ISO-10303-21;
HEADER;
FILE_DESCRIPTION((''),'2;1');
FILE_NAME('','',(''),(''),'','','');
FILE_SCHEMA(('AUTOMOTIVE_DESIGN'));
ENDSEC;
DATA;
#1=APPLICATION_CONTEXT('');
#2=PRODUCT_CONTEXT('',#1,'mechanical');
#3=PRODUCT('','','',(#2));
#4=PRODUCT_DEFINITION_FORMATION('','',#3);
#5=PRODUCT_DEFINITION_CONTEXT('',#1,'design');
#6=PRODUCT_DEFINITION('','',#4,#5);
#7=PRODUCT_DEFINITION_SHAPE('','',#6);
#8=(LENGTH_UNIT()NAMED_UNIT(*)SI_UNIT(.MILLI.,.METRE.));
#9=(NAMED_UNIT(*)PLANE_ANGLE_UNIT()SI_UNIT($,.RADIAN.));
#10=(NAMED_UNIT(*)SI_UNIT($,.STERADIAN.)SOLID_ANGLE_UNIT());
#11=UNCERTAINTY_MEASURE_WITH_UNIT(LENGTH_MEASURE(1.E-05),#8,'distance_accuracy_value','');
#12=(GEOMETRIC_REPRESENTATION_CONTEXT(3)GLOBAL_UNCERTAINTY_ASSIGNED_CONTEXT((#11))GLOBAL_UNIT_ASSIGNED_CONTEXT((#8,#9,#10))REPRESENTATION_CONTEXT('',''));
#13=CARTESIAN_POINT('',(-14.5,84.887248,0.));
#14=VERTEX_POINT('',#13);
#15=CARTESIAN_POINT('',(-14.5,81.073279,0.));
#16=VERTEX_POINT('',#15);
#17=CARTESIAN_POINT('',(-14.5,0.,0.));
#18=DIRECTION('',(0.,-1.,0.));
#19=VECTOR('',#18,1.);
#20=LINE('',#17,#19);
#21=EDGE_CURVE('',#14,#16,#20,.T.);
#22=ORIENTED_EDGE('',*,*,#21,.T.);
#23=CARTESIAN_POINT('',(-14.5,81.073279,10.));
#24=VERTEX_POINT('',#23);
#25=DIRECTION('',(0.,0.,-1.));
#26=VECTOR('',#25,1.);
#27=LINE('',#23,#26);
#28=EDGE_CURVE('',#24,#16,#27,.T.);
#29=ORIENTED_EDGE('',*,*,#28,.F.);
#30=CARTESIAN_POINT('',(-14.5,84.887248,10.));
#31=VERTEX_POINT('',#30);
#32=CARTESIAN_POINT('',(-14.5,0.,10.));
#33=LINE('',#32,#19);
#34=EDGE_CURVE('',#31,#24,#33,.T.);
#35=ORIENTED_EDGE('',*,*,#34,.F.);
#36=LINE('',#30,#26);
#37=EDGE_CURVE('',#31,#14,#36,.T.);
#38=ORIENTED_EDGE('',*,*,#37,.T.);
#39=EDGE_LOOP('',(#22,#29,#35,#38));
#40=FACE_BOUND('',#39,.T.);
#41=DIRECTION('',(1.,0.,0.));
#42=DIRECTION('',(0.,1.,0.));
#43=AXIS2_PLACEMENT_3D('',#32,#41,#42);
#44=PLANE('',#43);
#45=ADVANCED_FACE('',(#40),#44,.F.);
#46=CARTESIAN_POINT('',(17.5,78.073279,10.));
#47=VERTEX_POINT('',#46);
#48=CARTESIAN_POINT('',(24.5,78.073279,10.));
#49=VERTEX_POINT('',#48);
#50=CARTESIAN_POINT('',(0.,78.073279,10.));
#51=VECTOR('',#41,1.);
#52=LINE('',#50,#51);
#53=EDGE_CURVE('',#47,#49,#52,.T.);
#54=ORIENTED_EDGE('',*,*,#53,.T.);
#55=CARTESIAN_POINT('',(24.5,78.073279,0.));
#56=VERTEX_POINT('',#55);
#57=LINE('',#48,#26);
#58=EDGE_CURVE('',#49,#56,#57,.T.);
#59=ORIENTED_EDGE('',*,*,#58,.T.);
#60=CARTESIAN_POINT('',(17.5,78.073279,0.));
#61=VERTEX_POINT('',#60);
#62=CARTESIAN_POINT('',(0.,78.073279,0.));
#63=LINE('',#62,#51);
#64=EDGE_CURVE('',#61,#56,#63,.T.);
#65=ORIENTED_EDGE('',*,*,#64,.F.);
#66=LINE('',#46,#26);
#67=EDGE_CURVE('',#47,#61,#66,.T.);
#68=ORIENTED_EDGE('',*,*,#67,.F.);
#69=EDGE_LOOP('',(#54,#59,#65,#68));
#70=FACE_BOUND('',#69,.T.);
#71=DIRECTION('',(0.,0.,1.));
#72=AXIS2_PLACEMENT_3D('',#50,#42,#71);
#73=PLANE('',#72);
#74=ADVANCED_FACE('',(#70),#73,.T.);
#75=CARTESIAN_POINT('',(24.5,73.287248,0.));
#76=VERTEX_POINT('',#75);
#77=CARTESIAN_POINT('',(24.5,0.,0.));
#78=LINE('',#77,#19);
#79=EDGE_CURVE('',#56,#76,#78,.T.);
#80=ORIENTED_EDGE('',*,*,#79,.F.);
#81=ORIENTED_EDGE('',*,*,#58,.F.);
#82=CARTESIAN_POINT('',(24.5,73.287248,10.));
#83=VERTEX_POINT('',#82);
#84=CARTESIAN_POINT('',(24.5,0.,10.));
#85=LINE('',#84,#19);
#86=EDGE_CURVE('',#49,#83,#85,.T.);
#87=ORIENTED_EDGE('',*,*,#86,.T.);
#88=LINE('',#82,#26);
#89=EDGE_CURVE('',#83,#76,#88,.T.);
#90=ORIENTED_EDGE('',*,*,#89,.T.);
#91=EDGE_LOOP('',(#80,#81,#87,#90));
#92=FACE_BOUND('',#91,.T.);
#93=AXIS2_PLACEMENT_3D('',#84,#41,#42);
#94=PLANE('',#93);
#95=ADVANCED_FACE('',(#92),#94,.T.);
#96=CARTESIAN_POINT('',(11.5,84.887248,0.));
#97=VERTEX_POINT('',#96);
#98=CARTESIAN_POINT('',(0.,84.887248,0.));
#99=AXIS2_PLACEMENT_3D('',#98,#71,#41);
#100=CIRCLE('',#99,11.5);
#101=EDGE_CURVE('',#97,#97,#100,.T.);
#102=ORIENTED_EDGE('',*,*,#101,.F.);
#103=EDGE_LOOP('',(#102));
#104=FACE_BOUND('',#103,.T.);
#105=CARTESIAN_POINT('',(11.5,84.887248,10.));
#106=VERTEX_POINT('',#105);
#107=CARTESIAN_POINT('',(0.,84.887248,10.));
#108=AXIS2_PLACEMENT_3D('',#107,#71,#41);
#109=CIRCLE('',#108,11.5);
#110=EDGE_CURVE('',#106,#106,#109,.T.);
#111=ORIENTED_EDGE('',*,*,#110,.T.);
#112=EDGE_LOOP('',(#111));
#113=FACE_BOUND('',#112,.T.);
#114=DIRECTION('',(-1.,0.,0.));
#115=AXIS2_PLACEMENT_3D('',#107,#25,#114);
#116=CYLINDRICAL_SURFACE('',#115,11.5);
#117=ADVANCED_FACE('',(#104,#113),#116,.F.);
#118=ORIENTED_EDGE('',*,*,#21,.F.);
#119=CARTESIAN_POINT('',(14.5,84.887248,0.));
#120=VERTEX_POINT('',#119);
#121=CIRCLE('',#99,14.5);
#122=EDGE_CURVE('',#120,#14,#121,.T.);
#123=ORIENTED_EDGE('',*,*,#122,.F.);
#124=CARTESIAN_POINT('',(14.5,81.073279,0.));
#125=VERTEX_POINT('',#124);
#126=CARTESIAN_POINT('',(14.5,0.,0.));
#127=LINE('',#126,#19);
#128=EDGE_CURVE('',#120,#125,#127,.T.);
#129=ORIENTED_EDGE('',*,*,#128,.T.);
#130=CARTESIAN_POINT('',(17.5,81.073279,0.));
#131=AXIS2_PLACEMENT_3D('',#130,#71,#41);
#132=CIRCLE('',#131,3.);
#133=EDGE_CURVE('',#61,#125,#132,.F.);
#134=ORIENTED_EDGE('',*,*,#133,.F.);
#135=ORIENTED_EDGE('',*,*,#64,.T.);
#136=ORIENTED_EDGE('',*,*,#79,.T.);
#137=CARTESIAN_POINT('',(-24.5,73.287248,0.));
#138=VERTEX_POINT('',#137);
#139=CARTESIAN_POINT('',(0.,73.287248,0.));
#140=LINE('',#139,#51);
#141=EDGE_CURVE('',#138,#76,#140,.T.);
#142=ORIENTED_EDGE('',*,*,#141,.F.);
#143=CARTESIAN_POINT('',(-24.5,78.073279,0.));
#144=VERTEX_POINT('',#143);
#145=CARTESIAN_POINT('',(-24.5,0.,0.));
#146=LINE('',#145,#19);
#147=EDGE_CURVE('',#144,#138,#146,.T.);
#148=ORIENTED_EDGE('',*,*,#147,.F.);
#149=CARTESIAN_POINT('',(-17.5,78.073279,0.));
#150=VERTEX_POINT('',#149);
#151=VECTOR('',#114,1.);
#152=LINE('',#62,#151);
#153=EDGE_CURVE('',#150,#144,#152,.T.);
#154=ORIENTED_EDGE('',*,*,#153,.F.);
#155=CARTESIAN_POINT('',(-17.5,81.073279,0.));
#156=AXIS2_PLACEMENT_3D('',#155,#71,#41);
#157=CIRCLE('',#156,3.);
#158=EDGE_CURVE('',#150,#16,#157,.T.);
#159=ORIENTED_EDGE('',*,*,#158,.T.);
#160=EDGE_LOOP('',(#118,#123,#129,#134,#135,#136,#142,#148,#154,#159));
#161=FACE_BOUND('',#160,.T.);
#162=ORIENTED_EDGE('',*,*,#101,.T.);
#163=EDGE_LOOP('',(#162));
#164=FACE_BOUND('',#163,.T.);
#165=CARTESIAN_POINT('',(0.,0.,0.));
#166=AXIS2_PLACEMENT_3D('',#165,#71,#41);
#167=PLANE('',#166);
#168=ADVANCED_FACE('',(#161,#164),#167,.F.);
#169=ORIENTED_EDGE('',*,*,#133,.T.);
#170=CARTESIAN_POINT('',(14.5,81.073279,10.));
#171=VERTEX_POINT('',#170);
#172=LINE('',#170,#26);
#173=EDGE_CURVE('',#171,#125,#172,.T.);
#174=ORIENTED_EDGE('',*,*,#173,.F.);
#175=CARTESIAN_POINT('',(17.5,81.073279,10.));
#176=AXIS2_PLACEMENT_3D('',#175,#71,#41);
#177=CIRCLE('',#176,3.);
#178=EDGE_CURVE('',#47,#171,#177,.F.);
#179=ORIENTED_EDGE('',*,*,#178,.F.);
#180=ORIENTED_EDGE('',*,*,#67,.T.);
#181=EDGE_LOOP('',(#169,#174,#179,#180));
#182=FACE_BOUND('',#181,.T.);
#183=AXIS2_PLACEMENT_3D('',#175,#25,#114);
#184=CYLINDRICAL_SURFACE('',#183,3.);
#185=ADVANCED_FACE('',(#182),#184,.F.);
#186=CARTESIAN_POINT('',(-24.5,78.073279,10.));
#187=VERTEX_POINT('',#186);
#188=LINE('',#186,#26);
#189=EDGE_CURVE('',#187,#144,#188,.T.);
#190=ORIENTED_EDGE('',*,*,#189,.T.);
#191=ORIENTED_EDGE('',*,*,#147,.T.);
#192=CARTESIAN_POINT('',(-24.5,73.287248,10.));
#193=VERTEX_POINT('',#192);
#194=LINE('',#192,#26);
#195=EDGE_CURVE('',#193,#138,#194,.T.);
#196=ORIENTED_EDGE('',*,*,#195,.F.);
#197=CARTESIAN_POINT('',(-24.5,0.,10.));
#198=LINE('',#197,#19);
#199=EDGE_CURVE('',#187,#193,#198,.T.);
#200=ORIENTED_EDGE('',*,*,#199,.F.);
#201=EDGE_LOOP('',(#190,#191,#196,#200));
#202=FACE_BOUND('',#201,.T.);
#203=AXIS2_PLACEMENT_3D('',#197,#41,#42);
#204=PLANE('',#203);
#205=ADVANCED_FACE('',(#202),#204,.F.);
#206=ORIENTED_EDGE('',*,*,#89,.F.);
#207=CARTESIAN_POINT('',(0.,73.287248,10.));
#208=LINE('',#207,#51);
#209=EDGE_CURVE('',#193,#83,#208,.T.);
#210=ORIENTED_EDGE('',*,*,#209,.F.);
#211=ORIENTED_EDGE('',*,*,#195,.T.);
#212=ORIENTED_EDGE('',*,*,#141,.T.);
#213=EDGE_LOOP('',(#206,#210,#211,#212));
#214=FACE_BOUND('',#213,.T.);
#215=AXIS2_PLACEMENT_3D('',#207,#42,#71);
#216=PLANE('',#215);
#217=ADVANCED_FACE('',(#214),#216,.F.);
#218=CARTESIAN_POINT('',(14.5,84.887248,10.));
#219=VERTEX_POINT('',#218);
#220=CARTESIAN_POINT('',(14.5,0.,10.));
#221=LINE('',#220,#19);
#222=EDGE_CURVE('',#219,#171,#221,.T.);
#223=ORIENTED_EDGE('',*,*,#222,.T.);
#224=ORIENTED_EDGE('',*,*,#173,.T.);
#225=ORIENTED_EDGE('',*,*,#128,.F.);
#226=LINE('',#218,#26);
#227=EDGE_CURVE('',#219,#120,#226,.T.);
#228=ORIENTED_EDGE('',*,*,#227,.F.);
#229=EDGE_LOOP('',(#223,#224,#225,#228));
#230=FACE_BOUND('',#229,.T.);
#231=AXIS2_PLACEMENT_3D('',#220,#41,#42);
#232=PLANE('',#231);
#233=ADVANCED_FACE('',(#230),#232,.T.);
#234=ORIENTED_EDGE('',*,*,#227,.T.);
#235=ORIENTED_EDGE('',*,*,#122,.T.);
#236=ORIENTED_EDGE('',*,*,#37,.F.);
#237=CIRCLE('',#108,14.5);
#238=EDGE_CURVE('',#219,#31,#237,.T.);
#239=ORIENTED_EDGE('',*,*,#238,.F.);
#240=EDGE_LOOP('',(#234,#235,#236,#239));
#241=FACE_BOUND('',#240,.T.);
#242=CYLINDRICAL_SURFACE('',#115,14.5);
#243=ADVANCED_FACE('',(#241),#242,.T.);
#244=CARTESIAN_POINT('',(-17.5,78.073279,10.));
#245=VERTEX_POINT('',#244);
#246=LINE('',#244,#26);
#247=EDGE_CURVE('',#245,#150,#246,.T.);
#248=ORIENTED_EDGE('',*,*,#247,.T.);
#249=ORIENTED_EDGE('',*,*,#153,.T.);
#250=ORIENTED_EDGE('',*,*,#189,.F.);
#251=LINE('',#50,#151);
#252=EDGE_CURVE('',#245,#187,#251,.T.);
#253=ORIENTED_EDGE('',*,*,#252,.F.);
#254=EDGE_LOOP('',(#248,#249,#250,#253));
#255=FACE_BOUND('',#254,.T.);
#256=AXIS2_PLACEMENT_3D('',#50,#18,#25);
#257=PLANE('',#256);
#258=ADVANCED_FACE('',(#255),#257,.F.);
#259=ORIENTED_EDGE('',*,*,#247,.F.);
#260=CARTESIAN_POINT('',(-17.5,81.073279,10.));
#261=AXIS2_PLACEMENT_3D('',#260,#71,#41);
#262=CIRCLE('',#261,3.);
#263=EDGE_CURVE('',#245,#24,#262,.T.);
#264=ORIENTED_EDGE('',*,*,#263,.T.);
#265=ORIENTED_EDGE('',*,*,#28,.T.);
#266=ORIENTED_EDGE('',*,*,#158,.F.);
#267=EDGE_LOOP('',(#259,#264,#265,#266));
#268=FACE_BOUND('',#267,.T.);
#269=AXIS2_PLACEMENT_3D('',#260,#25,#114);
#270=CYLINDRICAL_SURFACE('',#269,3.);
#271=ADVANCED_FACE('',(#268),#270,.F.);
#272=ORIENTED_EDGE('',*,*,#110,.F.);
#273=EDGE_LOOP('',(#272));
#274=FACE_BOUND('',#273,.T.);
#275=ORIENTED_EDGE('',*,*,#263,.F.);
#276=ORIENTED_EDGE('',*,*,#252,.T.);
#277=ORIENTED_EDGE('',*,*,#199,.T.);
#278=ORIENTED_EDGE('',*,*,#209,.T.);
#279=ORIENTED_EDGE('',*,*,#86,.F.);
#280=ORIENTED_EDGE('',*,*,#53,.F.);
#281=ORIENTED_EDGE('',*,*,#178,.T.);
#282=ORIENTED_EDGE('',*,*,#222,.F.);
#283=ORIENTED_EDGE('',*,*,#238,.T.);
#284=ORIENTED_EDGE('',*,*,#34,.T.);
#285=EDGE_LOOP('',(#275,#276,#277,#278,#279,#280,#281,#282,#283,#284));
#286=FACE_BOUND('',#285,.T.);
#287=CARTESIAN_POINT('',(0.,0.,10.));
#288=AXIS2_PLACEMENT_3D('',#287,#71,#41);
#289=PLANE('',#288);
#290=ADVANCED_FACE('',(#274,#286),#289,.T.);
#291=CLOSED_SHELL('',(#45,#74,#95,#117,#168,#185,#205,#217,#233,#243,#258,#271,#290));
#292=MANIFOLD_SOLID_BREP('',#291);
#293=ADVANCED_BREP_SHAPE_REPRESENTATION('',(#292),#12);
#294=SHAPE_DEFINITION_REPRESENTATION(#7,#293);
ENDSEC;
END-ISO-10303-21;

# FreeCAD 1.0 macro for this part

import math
import FreeCAD as App
import Part
import Sketcher

V = App.Vector
Q = App.Units.Quantity

doc = App.newDocument("Part")
body = doc.addObject("PartDesign::Body", "Body")

# Sketch on XY plane
sketch1 = body.newObject("Sketcher::SketchObject", "Sketch")
sketch1.AttachmentSupport = (doc.getObject("XY_Plane"), [""])
sketch1.MapMode = "FlatFace"
sketch1.addGeometry([
    Part.LineSegment(V(24.5, 78.1, 0), V(17.5, 78.1, 0)),  # 0
    Part.ArcOfCircle(Part.Circle(V(17.5, 81.1, 0), V(0, 0, 1), 3), math.radians(180), math.radians(270)),  # 1
    Part.LineSegment(V(14.5, 81.1, 0), V(14.5, 84.9, 0)),  # 2
    Part.ArcOfCircle(Part.Circle(V(0, 84.9, 0), V(0, 0, 1), 14.5), math.radians(0), math.radians(180)),  # 3
    Part.LineSegment(V(-14.5, 84.9, 0), V(-14.5, 81.1, 0)),  # 4
    Part.ArcOfCircle(Part.Circle(V(-17.5, 81.1, 0), V(0, 0, 1), 3), math.radians(-90), math.radians(0)),  # 5
    Part.LineSegment(V(-17.5, 78.1, 0), V(-24.5, 78.1, 0)),  # 6
    Part.LineSegment(V(-24.5, 78.1, 0), V(-24.5, 73.3, 0)),  # 7
    Part.LineSegment(V(-24.5, 73.3, 0), V(24.5, 73.3, 0)),  # 8
    Part.LineSegment(V(24.5, 73.3, 0), V(24.5, 78.1, 0)),  # 9
    Part.Circle(V(0, 84.9, 0), V(0, 0, 1), 11.5),  # 10
], False)
sketch1.addConstraint([
    Sketcher.Constraint("Tangent", 0, 2, 1, 2),
    Sketcher.Constraint("Tangent", 1, 1, 2, 1),
    Sketcher.Constraint("Tangent", 2, 2, 3, 1),
    Sketcher.Constraint("Tangent", 3, 2, 4, 1),
    Sketcher.Constraint("Tangent", 4, 2, 5, 2),
    Sketcher.Constraint("Tangent", 5, 1, 6, 1),
    Sketcher.Constraint("Coincident", 6, 2, 7, 1),
    Sketcher.Constraint("Coincident", 7, 2, 8, 1),
    Sketcher.Constraint("Coincident", 8, 2, 9, 1),
    Sketcher.Constraint("Coincident", 9, 2, 0, 1),
    Sketcher.Constraint("Horizontal", 0),
    Sketcher.Constraint("Vertical", 2),
    Sketcher.Constraint("Vertical", 4),
    Sketcher.Constraint("Horizontal", 6),
    Sketcher.Constraint("Vertical", 7),
    Sketcher.Constraint("Horizontal", 8),
    Sketcher.Constraint("Vertical", 9),
    Sketcher.Constraint("Coincident", 10, 3, 3, 3),
    Sketcher.Constraint("Equal", 1, 5),
    Sketcher.Constraint("Symmetric", 1, 3, 5, 3, -2),
    Sketcher.Constraint("Equal", 0, 6),
    Sketcher.Constraint("Diameter", 10, Q("23 mm")),
    Sketcher.Constraint("Radius", 1, Q("3 mm")),
    Sketcher.Constraint("Radius", 3, Q("14.5 mm")),
    Sketcher.Constraint("DistanceX", 0, 2, 0, 1, Q("7 mm")),
    Sketcher.Constraint("DistanceY", 7, 2, 3, 2, Q("11.6 mm")),
    Sketcher.Constraint("DistanceY", 2, 1, 2, 2, Q("3.813968 mm")),
    Sketcher.Constraint("DistanceY", -1, 1, 1, 3, Q("81.073279 mm")),
])
pad1 = body.newObject("PartDesign::Pad", "Pad")
pad1.Profile = sketch1
pad1.Length = 10

doc.recompute()
